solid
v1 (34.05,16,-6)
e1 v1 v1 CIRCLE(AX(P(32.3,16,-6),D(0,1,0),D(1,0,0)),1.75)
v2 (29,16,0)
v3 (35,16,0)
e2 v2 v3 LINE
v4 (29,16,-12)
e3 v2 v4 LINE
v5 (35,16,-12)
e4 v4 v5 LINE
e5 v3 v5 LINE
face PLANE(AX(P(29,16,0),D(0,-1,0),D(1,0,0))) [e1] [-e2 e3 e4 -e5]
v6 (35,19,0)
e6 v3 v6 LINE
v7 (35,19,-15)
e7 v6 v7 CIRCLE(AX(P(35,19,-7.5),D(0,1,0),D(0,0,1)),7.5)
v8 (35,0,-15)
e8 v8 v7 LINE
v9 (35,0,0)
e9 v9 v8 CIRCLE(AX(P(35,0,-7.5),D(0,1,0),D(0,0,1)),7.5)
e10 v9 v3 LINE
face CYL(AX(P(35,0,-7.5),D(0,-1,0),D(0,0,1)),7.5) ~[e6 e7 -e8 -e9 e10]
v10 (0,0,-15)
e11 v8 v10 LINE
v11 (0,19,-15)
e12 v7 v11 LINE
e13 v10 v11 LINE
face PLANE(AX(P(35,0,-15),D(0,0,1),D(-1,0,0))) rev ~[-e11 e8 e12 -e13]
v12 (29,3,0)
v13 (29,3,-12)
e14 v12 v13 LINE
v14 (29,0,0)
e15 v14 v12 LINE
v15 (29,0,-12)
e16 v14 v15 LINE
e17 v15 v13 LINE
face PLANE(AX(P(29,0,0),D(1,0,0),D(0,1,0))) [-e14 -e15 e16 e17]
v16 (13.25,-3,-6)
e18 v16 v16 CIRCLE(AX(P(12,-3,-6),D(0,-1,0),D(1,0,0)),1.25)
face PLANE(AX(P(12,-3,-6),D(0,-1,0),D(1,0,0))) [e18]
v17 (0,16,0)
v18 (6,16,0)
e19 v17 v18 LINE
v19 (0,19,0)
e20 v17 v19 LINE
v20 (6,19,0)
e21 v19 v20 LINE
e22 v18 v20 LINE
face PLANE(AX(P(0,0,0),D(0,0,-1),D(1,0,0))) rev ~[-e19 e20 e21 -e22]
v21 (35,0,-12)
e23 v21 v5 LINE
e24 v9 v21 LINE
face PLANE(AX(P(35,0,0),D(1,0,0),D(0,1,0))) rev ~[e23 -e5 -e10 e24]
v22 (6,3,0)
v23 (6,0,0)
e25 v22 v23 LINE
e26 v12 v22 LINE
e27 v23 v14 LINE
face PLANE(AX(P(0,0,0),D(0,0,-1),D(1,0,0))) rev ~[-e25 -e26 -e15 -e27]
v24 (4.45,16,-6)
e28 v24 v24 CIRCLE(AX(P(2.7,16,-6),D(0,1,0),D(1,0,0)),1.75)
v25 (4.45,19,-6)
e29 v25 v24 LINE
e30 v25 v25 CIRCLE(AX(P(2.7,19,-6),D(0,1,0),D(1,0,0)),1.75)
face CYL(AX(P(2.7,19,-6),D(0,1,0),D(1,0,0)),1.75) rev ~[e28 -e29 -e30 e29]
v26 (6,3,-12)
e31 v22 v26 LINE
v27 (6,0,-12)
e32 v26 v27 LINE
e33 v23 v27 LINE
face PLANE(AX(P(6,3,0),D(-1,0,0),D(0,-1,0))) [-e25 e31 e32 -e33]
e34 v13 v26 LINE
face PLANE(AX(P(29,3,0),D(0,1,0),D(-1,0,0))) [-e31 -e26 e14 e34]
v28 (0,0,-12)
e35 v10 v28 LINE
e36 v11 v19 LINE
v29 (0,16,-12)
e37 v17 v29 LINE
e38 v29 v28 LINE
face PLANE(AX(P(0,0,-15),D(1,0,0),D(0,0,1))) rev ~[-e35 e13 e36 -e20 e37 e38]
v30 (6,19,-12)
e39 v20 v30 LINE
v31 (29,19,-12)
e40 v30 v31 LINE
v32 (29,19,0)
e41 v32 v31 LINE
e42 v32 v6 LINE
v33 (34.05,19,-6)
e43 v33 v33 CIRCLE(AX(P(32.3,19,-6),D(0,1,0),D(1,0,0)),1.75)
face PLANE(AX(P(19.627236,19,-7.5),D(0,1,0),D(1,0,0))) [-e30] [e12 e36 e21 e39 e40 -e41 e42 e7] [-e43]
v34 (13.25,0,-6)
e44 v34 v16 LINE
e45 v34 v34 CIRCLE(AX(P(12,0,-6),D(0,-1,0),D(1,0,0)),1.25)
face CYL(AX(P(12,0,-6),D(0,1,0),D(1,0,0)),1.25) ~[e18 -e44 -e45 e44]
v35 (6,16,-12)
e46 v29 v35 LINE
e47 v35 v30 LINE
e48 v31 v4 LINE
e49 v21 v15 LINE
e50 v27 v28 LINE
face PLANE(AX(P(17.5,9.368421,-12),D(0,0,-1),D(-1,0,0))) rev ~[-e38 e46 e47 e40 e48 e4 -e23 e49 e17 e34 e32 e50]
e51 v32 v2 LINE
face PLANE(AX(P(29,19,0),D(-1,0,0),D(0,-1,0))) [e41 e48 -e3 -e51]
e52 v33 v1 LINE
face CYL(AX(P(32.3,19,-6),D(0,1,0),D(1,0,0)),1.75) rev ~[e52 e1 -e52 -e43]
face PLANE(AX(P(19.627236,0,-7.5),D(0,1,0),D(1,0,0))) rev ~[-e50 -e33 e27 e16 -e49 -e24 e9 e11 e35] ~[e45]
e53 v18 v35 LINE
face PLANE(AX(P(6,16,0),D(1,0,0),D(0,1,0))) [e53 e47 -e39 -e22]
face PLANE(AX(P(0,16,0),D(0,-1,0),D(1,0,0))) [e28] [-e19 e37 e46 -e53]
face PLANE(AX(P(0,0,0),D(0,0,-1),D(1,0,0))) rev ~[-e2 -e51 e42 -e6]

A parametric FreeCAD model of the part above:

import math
import FreeCAD as App
import Part
import Sketcher

V = App.Vector
Q = App.Units.Quantity

doc = App.newDocument("Part")
body = doc.addObject("PartDesign::Body", "Body")

sketch1 = body.newObject("Sketcher::SketchObject", "Sketch")
sketch1.AttachmentSupport = (doc.getObject("XZ_Plane"), [""])
sketch1.MapMode = "FlatFace"
sketch1.addGeometry([
    Part.LineSegment(V(0, 0, 0), V(35, 0, 0)),
    Part.ArcOfCircle(Part.Circle(V(35, -8, 0), V(0, 0, 1), 8), math.radians(-90), math.radians(90)),
    Part.LineSegment(V(35, -15, 0), V(0, -15, 0)),
    Part.LineSegment(V(0, -15, 0), V(0, 0, 0)),
], False)
sketch1.addConstraint([
    Sketcher.Constraint("Tangent", 0, 2, 1, 2),
    Sketcher.Constraint("Tangent", 1, 1, 2, 1),
    Sketcher.Constraint("Coincident", 2, 2, 3, 1),
    Sketcher.Constraint("Coincident", 3, 2, 0, 1),
    Sketcher.Constraint("Horizontal", 0),
    Sketcher.Constraint("Horizontal", 2),
    Sketcher.Constraint("Vertical", 3),
    Sketcher.Constraint("Coincident", 3, 2, -1, 1),
    Sketcher.Constraint("Radius", 1, Q("7.5 mm")),
    Sketcher.Constraint("DistanceX", 0, 1, 0, 2, Q("35 mm")),
])
pad1 = body.newObject("PartDesign::Pad", "Pad")
pad1.Profile = sketch1
pad1.Length = 19
pad1.Reversed = True

sketch2 = body.newObject("Sketcher::SketchObject", "Sketch001")
sketch2.AttachmentSupport = (doc.getObject("XY_Plane"), [""])
sketch2.MapMode = "FlatFace"
sketch2.addGeometry([
    Part.LineSegment(V(29, 19, 0), V(6, 19, 0)),
    Part.LineSegment(V(6, 19, 0), V(6, 16, 0)),
    Part.LineSegment(V(6, 16, 0), V(0, 16, 0)),
    Part.LineSegment(V(0, 16, 0), V(0, 0, 0)),
    Part.LineSegment(V(0, 0, 0), V(6, 0, 0)),
    Part.LineSegment(V(6, 0, 0), V(6, 3, 0)),
    Part.LineSegment(V(6, 3, 0), V(29, 3, 0)),
    Part.LineSegment(V(29, 3, 0), V(29, 0, 0)),
    Part.LineSegment(V(29, 0, 0), V(35, 0, 0)),
    Part.LineSegment(V(35, 0, 0), V(35, 16, 0)),
    Part.LineSegment(V(35, 16, 0), V(29, 16, 0)),
    Part.LineSegment(V(29, 16, 0), V(29, 19, 0)),
], False)
sketch2.addConstraint([
    Sketcher.Constraint("Coincident", 0, 2, 1, 1),
    Sketcher.Constraint("Coincident", 1, 2, 2, 1),
    Sketcher.Constraint("Coincident", 2, 2, 3, 1),
    Sketcher.Constraint("Coincident", 3, 2, 4, 1),
    Sketcher.Constraint("Coincident", 4, 2, 5, 1),
    Sketcher.Constraint("Coincident", 5, 2, 6, 1),
    Sketcher.Constraint("Coincident", 6, 2, 7, 1),
    Sketcher.Constraint("Coincident", 7, 2, 8, 1),
    Sketcher.Constraint("Coincident", 8, 2, 9, 1),
    Sketcher.Constraint("Coincident", 9, 2, 10, 1),
    Sketcher.Constraint("Coincident", 10, 2, 11, 1),
    Sketcher.Constraint("Coincident", 11, 2, 0, 1),
    Sketcher.Constraint("Horizontal", 0),
    Sketcher.Constraint("Vertical", 1),
    Sketcher.Constraint("Horizontal", 2),
    Sketcher.Constraint("Vertical", 3),
    Sketcher.Constraint("Horizontal", 4),
    Sketcher.Constraint("Vertical", 5),
    Sketcher.Constraint("Horizontal", 6),
    Sketcher.Constraint("Vertical", 7),
    Sketcher.Constraint("Horizontal", 8),
    Sketcher.Constraint("Vertical", 9),
    Sketcher.Constraint("Horizontal", 10),
    Sketcher.Constraint("Vertical", 11),
    Sketcher.Constraint("Coincident", 3, 2, -1, 1),
    Sketcher.Constraint("PointOnObject", 7, 2, -1),
    Sketcher.Constraint("Horizontal", 2, 2, 9, 2),
    Sketcher.Constraint("Vertical", 1, 2, 4, 2),
    Sketcher.Constraint("Vertical", 7, 2, 10, 2),
    Sketcher.Constraint("Equal", 4, 8),
    Sketcher.Constraint("Equal", 1, 5),
    Sketcher.Constraint("DistanceX", 0, 2, 0, 1, Q("23 mm")),
    Sketcher.Constraint("DistanceX", 2, 2, 2, 1, Q("6 mm")),
    Sketcher.Constraint("DistanceY", 1, 2, 1, 1, Q("3 mm")),
    Sketcher.Constraint("DistanceY", 3, 2, 3, 1, Q("16 mm")),
])
pocket1 = body.newObject("PartDesign::Pocket", "Pocket")
pocket1.Profile = sketch2
pocket1.Length = 12

sketch3 = body.newObject("Sketcher::SketchObject", "Sketch002")
sketch3.AttachmentSupport = (doc.getObject("XZ_Plane"), [""])
sketch3.MapMode = "FlatFace"
sketch3.AttachmentOffset = App.Placement(V(0, 0, -19), App.Rotation())
sketch3.addGeometry([
    Part.Circle(V(2.7, -6, 0), V(0, 0, 1), 1.8),
    Part.Circle(V(32.3, -6, 0), V(0, 0, 1), 1.8),
], False)
sketch3.addConstraint([
    Sketcher.Constraint("Equal", 0, 1),
    Sketcher.Constraint("Horizontal", 0, 3, 1, 3),
    Sketcher.Constraint("Diameter", 0, Q("3.5 mm")),
    Sketcher.Constraint("DistanceY", 0, 3, -1, 1, Q("6 mm")),
    Sketcher.Constraint("DistanceX", -1, 1, 0, 3, Q("2.7 mm")),
    Sketcher.Constraint("DistanceX", -1, 1, 1, 3, Q("32.3 mm")),
])
pocket2 = body.newObject("PartDesign::Pocket", "Pocket001")
pocket2.Profile = sketch3
pocket2.Length = 12
pocket2.Reversed = True

sketch4 = body.newObject("Sketcher::SketchObject", "Sketch003")
sketch4.AttachmentSupport = (doc.getObject("XZ_Plane"), [""])
sketch4.MapMode = "FlatFace"
sketch4.addGeometry(Part.Circle(V(12, -6, 0), V(0, 0, 1), 1.2), False)
sketch4.addConstraint([
    Sketcher.Constraint("Diameter", 0, Q("2.5 mm")),
    Sketcher.Constraint("DistanceX", -1, 1, 0, 3, Q("12 mm")),
    Sketcher.Constraint("DistanceY", 0, 3, -1, 1, Q("6 mm")),
])
pad2 = body.newObject("PartDesign::Pad", "Pad001")
pad2.Profile = sketch4
pad2.Length = 3

doc.recompute()
